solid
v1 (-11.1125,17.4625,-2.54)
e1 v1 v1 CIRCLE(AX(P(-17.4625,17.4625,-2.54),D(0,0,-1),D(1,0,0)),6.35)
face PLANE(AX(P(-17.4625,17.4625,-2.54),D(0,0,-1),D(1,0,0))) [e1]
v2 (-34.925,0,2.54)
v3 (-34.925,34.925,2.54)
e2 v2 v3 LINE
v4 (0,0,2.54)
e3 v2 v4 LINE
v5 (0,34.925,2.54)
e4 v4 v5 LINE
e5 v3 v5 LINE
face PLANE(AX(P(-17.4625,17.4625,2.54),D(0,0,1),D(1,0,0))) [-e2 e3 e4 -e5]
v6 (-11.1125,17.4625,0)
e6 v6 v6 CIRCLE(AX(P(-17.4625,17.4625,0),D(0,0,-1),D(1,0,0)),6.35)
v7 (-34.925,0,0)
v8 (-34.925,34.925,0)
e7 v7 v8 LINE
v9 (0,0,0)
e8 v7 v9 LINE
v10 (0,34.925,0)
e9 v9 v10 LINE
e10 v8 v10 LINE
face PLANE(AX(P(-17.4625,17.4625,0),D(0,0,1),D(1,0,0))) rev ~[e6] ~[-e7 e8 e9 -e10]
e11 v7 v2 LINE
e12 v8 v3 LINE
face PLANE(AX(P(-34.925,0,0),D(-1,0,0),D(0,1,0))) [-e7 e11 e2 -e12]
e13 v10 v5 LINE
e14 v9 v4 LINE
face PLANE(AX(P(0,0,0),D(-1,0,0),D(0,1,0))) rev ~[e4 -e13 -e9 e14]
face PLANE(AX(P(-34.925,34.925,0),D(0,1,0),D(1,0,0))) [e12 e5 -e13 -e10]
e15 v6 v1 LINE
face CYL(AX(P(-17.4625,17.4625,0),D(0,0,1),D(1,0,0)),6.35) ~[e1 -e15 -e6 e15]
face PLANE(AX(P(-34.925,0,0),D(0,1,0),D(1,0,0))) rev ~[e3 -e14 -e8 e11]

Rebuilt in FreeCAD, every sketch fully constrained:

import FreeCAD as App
import Part
import Sketcher
from FreeCAD import Vector
Q = App.Units.Quantity

doc = App.newDocument("Part")
body = doc.addObject("PartDesign::Body", "Body")

sketch1 = body.newObject("Sketcher::SketchObject", "Sketch")
sketch1.AttachmentSupport = (doc.getObject("XY_Plane"), [""])
sketch1.MapMode = "FlatFace"
sketch1.addGeometry([
    Part.LineSegment(Vector(-35, 35, 0), Vector(-35, 0, 0)),
    Part.LineSegment(Vector(-35, 0, 0), Vector(0, 0, 0)),
    Part.LineSegment(Vector(0, 0, 0), Vector(0, 35, 0)),
    Part.LineSegment(Vector(0, 35, 0), Vector(-35, 35, 0)),
], False)
sketch1.addConstraint([
    Sketcher.Constraint("Coincident", 0, 2, 1, 1),
    Sketcher.Constraint("Coincident", 1, 2, 2, 1),
    Sketcher.Constraint("Coincident", 2, 2, 3, 1),
    Sketcher.Constraint("Coincident", 3, 2, 0, 1),
    Sketcher.Constraint("Vertical", 0),
    Sketcher.Constraint("Horizontal", 1),
    Sketcher.Constraint("Vertical", 2),
    Sketcher.Constraint("Horizontal", 3),
    Sketcher.Constraint("Coincident", 1, 2, -1, 1),
    Sketcher.Constraint("Equal", 3, 0),
    Sketcher.Constraint("DistanceX", 1, 1, 1, 2, Q("1.375 in")),
])
pad1 = body.newObject("PartDesign::Pad", "Pad")
pad1.Profile = sketch1
pad1.Length = Q("0.1 in")

sketch2 = body.newObject("Sketcher::SketchObject", "Sketch001")
sketch2.AttachmentSupport = (doc.getObject("XY_Plane"), [""])
sketch2.MapMode = "FlatFace"
sketch2.addGeometry(Part.Circle(Vector(-17, 17, 0), Vector(0, 0, 1), 6), False)
sketch2.addConstraint([
    Sketcher.Constraint("Diameter", 0, Q("0.5 in")),
    Sketcher.Constraint("DistanceX", 0, 3, -1, 1, Q("0.6875 in")),
    Sketcher.Constraint("DistanceY", -1, 1, 0, 3, Q("0.6875 in")),
])
pad2 = body.newObject("PartDesign::Pad", "Pad001")
pad2.Profile = sketch2
pad2.Length = Q("0.1 in")
pad2.Reversed = True

doc.recompute()
